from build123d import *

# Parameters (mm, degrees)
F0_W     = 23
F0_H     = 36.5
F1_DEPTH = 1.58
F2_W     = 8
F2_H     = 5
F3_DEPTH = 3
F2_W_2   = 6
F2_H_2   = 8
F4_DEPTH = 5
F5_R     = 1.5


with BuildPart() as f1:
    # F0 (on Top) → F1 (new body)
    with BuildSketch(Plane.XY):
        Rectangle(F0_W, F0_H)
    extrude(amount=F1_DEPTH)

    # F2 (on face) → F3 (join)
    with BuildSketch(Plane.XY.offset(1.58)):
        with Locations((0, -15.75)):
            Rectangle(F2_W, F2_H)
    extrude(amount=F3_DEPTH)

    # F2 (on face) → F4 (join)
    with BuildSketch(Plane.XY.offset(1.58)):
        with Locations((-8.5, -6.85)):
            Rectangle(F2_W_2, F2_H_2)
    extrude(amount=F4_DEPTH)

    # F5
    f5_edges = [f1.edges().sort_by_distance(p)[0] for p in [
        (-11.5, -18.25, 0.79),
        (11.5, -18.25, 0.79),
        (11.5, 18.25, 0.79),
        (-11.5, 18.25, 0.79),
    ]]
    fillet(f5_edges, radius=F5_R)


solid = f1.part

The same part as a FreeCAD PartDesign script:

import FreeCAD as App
import Part
import Sketcher

V = App.Vector
Q = App.Units.Quantity


def edges_at(feature, points):
    """Names of the edges that pass closest to the given points."""
    edges = feature.Shape.Edges
    near = lambda p: min(range(len(edges)), key=lambda i: edges[i].distToShape(Part.Vertex(*p))[0])
    return sorted({f"Edge{near(p) + 1}" for p in points})


def add_polygon(sketch, points):
    """Adds a closed chain of lines whose ends are joined by coincident constraints."""
    first, n = sketch.GeometryCount, len(points)
    for a, b in zip(points, points[1:] + points[:1]):
        sketch.addGeometry(Part.LineSegment(App.Vector(*a, 0), App.Vector(*b, 0)), False)
    for i in range(n):
        sketch.addConstraint(Sketcher.Constraint("Coincident", first + i, 2, first + (i + 1) % n, 1))

doc = App.newDocument("Part")
body = doc.addObject("PartDesign::Body", "Body")

# Sketch on XY plane
sketch1 = body.newObject("Sketcher::SketchObject", "Sketch")
sketch1.AttachmentSupport = (doc.getObject("XY_Plane"), [""])
sketch1.MapMode = "FlatFace"
add_polygon(sketch1, [(-11.5, 18.25), (-11.5, -18.25), (11.5, -18.25), (11.5, 18.25)])  # lines 0-3
sketch1.addConstraint(Sketcher.Constraint("Vertical", 0))
sketch1.addConstraint(Sketcher.Constraint("Horizontal", 1))
sketch1.addConstraint(Sketcher.Constraint("Vertical", 2))
sketch1.addConstraint(Sketcher.Constraint("Horizontal", 3))
sketch1.addConstraint(Sketcher.Constraint("Symmetric", 0, 2, 2, 2, -1, 1))
sketch1.addConstraint(Sketcher.Constraint("DistanceX", 1, 1, 1, 2, Q("23 mm")))
sketch1.addConstraint(Sketcher.Constraint("DistanceY", 0, 2, 0, 1, Q("36.5 mm")))
pad1 = body.newObject("PartDesign::Pad", "Pad")
pad1.Profile = sketch1
pad1.Length = 1.58

# Sketch on XY plane
sketch2 = body.newObject("Sketcher::SketchObject", "Sketch001")
sketch2.AttachmentSupport = (doc.getObject("XY_Plane"), [""])
sketch2.MapMode = "FlatFace"
sketch2.AttachmentOffset = App.Placement(V(0, 0, 1.58), App.Rotation())
add_polygon(sketch2, [(-4, -13.25), (-4, -18.25), (4, -18.25), (4, -13.25)])  # lines 0-3
sketch2.addConstraint(Sketcher.Constraint("Vertical", 0))
sketch2.addConstraint(Sketcher.Constraint("Horizontal", 1))
sketch2.addConstraint(Sketcher.Constraint("Vertical", 2))
sketch2.addConstraint(Sketcher.Constraint("Horizontal", 3))
sketch2.addConstraint(Sketcher.Constraint("DistanceX", 1, 1, 1, 2, Q("8 mm")))
sketch2.addConstraint(Sketcher.Constraint("DistanceY", 0, 2, 0, 1, Q("5 mm")))
sketch2.addConstraint(Sketcher.Constraint("DistanceX", 0, 2, -1, 1, Q("4 mm")))
sketch2.addConstraint(Sketcher.Constraint("DistanceY", 0, 2, -1, 1, Q("18.25 mm")))
pad2 = body.newObject("PartDesign::Pad", "Pad001")
pad2.Profile = sketch2
pad2.Length = 3

# Sketch on XY plane
sketch3 = body.newObject("Sketcher::SketchObject", "Sketch002")
sketch3.AttachmentSupport = (doc.getObject("XY_Plane"), [""])
sketch3.MapMode = "FlatFace"
sketch3.AttachmentOffset = App.Placement(V(0, 0, 1.58), App.Rotation())
add_polygon(sketch3, [(-11.5, -2.85), (-11.5, -10.85), (-5.5, -10.85), (-5.5, -2.85)])  # lines 0-3
sketch3.addConstraint(Sketcher.Constraint("Vertical", 0))
sketch3.addConstraint(Sketcher.Constraint("Horizontal", 1))
sketch3.addConstraint(Sketcher.Constraint("Vertical", 2))
sketch3.addConstraint(Sketcher.Constraint("Horizontal", 3))
sketch3.addConstraint(Sketcher.Constraint("DistanceX", 1, 1, 1, 2, Q("6 mm")))
sketch3.addConstraint(Sketcher.Constraint("DistanceY", 0, 2, 0, 1, Q("8 mm")))
sketch3.addConstraint(Sketcher.Constraint("DistanceX", 0, 2, -1, 1, Q("11.5 mm")))
sketch3.addConstraint(Sketcher.Constraint("DistanceY", 0, 2, -1, 1, Q("10.85 mm")))
pad3 = body.newObject("PartDesign::Pad", "Pad002")
pad3.Profile = sketch3
pad3.Length = 5
doc.recompute()

fillet = body.newObject("PartDesign::Fillet", "Fillet")
fillet.Base = (pad3, edges_at(pad3, [
    (-11.5, -18.25, 0.79),
    (11.5, -18.25, 0.79),
    (11.5, 18.25, 0.79),
    (-11.5, 18.25, 0.79),
]))
fillet.Radius = 1.5

doc.recompute()
